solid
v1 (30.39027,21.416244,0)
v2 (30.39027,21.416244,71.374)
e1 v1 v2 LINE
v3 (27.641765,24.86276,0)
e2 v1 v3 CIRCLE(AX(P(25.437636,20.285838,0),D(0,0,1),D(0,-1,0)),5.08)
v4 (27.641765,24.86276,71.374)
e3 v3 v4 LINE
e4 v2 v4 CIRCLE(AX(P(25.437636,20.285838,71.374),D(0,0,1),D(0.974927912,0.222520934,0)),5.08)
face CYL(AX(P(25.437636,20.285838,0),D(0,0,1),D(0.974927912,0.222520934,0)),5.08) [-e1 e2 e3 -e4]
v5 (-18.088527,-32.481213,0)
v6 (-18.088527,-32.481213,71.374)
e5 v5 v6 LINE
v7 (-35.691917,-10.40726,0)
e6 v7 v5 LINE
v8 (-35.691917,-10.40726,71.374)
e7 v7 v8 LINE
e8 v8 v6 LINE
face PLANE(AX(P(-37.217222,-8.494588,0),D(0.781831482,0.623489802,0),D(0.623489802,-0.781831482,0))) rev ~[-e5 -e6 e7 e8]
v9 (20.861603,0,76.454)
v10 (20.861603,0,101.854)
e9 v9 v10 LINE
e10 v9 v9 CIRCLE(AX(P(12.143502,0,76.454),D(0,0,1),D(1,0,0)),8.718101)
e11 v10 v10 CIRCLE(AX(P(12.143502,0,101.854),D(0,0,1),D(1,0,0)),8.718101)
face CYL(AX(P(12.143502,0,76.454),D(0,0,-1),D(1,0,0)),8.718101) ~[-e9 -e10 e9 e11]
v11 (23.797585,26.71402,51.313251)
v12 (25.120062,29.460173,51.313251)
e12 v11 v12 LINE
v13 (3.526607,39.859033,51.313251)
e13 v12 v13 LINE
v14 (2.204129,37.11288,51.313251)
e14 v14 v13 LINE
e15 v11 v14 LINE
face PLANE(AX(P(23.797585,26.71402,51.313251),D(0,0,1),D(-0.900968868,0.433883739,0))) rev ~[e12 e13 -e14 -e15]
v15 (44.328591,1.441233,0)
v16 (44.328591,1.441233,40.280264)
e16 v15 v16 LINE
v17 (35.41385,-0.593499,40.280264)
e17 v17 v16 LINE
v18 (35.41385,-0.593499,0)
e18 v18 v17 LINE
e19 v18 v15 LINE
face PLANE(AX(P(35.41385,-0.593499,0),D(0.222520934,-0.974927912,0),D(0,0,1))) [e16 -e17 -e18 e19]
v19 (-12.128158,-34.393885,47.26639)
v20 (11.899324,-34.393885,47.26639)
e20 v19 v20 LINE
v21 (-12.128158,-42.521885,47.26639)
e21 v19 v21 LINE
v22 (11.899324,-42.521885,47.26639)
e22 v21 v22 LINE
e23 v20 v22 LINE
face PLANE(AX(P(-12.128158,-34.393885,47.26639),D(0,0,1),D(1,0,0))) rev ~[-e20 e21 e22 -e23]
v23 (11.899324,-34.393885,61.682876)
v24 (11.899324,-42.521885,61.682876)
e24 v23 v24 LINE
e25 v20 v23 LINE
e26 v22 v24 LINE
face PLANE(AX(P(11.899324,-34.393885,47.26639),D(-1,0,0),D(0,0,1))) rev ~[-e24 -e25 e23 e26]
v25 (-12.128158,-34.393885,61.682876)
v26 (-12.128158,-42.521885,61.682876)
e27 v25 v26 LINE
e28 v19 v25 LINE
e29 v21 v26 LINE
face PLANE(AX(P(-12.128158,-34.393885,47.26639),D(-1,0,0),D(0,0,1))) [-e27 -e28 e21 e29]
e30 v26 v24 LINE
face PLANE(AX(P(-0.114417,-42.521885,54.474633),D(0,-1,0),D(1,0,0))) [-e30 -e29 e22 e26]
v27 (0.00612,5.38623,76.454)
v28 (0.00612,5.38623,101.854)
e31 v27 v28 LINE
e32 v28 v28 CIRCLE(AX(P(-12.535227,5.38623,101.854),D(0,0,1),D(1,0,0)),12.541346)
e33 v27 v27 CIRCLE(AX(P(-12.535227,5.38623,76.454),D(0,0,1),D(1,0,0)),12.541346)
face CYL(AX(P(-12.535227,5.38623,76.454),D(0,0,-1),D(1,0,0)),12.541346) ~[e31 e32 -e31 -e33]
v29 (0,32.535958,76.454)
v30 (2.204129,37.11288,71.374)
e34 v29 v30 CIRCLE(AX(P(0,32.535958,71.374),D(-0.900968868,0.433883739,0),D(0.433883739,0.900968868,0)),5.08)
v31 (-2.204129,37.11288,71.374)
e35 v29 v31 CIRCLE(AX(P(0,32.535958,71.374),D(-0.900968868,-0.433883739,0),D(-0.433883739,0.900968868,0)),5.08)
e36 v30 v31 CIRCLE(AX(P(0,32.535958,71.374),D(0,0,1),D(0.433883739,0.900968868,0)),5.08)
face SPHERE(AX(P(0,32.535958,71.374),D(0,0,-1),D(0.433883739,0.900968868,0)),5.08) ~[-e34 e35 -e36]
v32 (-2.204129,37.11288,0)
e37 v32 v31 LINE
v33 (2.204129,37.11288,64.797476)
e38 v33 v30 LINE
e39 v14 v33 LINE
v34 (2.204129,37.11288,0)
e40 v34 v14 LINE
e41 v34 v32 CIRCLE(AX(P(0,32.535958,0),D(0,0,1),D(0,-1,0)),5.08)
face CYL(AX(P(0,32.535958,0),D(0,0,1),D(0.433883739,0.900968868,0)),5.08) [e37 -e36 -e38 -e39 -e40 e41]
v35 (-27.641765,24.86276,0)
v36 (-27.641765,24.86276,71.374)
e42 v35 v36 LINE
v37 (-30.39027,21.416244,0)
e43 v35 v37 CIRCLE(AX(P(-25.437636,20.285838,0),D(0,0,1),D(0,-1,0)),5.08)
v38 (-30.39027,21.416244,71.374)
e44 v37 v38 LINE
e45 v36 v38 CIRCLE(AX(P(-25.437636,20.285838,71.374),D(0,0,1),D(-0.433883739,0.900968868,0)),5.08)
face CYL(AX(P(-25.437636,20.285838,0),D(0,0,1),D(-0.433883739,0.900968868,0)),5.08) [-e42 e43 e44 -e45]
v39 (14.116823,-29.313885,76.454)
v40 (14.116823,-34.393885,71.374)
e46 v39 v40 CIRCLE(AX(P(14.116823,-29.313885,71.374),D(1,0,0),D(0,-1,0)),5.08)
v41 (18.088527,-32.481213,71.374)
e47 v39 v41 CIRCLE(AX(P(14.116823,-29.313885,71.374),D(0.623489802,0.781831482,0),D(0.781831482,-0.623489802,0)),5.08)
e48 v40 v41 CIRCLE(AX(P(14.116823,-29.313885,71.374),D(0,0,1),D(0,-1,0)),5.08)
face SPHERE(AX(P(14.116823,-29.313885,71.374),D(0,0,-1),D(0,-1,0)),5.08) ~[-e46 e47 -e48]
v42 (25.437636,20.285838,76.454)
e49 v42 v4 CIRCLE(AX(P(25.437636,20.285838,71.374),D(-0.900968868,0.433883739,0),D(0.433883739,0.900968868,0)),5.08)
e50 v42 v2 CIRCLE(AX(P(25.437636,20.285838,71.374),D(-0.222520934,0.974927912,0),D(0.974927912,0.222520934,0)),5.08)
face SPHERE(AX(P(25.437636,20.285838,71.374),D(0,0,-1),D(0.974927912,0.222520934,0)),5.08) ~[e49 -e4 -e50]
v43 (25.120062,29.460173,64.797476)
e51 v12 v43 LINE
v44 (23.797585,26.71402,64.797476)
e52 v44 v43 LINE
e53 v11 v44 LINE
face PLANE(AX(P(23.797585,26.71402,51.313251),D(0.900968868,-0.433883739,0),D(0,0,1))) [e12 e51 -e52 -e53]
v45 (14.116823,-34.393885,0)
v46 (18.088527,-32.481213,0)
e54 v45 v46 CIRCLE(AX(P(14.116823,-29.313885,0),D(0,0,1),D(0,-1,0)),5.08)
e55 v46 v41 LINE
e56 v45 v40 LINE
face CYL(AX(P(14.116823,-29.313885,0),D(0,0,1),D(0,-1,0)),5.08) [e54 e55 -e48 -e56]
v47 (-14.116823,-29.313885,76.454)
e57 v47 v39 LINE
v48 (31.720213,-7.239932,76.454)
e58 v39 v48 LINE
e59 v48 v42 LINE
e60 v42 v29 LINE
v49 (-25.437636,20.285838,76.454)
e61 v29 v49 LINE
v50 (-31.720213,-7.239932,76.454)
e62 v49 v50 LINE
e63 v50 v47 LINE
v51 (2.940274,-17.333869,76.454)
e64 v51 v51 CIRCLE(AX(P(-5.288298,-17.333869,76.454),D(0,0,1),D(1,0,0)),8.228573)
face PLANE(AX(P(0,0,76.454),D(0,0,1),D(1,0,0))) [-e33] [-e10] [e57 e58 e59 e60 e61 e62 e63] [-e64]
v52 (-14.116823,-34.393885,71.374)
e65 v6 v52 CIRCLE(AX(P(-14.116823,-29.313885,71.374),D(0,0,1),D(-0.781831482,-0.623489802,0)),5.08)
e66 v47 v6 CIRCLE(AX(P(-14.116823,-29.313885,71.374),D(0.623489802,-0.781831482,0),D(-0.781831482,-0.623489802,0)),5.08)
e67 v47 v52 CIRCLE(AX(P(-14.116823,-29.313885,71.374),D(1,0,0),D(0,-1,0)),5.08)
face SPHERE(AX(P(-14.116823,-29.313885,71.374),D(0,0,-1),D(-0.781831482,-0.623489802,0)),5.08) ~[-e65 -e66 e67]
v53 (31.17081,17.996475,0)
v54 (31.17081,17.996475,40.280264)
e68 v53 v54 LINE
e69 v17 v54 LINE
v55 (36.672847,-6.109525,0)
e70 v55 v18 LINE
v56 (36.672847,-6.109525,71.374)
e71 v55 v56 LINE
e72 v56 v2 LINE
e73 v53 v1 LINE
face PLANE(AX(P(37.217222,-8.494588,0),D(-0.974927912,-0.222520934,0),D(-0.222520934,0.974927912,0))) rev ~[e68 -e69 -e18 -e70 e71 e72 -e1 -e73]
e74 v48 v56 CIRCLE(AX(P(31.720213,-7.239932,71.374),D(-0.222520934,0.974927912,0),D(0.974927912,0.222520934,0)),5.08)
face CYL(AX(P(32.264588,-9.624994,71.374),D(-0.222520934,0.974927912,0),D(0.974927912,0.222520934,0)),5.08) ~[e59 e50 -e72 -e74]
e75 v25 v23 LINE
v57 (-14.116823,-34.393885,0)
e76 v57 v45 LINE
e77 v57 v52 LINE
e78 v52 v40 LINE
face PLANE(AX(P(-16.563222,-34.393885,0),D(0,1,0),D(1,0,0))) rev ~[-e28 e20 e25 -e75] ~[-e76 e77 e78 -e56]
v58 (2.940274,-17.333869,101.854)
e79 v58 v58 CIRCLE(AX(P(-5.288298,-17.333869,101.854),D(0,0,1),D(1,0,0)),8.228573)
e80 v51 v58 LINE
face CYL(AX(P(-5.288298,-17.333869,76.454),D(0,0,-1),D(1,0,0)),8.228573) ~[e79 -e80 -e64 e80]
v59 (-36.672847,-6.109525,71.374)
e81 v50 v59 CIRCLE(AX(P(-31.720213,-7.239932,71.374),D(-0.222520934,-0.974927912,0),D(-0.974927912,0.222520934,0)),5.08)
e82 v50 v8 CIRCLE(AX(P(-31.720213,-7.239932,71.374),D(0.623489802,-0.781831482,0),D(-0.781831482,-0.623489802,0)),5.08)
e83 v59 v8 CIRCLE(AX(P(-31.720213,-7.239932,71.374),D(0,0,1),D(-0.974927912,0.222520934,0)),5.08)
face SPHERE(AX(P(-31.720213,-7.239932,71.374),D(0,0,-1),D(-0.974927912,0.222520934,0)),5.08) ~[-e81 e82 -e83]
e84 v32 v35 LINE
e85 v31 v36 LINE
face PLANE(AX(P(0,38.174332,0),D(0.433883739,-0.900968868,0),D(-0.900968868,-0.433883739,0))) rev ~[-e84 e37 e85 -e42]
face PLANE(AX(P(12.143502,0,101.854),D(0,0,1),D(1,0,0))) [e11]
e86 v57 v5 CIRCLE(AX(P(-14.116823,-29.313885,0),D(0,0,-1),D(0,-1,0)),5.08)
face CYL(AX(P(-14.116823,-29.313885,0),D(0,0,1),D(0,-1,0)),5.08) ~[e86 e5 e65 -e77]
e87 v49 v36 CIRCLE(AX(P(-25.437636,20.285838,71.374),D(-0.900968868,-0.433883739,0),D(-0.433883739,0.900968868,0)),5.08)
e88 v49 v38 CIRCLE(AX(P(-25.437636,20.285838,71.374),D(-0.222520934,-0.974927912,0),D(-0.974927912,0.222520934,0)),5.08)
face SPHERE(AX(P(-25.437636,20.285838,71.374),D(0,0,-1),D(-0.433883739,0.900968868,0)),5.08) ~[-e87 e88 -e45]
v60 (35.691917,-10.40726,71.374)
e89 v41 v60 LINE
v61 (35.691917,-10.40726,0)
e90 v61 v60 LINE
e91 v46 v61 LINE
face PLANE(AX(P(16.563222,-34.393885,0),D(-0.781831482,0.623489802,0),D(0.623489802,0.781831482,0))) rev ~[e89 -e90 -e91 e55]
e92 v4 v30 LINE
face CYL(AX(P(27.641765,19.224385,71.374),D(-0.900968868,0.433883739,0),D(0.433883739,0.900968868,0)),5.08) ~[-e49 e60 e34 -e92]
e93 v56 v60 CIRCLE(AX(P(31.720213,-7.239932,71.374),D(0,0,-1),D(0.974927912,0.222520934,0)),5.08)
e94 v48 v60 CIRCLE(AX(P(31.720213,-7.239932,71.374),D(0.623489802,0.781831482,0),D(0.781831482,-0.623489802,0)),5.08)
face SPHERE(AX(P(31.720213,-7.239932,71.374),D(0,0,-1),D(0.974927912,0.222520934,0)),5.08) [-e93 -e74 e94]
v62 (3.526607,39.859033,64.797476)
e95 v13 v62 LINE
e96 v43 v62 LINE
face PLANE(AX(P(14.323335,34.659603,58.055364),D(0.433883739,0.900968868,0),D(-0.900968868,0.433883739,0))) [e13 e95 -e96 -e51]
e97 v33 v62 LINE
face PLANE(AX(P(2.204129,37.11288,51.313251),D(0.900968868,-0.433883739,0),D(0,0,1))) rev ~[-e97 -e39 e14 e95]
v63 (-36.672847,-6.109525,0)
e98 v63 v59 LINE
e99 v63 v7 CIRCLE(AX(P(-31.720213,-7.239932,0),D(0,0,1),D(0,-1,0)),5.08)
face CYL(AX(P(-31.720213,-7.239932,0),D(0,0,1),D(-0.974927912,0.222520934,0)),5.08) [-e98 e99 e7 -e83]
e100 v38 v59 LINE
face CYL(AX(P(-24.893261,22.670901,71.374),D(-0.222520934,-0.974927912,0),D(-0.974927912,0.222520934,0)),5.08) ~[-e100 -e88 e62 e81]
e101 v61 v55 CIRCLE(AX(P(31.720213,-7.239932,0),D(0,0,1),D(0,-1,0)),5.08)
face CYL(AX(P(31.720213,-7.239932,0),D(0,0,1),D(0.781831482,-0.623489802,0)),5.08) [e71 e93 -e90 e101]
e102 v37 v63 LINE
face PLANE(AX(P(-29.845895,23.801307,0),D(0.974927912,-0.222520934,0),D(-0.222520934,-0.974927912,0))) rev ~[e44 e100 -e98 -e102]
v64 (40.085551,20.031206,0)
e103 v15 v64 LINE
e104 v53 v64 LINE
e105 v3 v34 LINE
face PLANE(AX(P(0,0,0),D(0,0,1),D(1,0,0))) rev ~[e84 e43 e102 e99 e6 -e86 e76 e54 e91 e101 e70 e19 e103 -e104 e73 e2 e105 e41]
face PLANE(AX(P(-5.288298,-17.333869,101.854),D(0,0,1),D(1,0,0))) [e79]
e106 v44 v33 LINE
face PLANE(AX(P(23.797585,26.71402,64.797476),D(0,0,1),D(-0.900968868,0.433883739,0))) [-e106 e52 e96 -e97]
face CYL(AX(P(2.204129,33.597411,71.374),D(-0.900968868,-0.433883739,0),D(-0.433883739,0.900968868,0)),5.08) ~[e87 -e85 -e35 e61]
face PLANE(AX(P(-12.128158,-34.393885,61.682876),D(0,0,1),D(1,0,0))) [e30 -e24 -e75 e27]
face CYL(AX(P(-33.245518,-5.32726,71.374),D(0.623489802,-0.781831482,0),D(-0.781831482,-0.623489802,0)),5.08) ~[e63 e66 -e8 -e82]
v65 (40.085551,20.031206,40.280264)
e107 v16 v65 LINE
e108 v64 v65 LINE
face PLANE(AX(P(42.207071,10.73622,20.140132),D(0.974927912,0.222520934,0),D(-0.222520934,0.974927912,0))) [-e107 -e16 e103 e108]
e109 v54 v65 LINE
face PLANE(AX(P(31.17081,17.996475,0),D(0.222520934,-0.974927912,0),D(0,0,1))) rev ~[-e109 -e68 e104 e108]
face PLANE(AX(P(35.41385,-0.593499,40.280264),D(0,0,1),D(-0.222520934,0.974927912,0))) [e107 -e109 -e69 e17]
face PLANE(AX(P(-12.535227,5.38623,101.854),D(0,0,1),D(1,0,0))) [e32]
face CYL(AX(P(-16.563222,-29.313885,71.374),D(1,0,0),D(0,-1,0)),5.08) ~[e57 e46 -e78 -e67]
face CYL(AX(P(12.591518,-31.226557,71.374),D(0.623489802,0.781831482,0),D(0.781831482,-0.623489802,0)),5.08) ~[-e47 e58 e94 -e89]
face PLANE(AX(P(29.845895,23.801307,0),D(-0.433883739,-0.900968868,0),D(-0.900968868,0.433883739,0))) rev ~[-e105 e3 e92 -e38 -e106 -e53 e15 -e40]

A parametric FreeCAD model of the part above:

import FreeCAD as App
import Part
import Sketcher
from FreeCAD import Vector
Q = App.Units.Quantity


def edges_at(feature, points):
    """Names of the edges that pass closest to the given points."""
    edges = feature.Shape.Edges
    near = lambda p: min(range(len(edges)), key=lambda i: edges[i].distToShape(Part.Vertex(*p))[0])
    return sorted({f"Edge{near(p) + 1}" for p in points})

doc = App.newDocument("Part")
params = doc.addObject("Spreadsheet::Sheet", "Params")
for row, (alias, value) in enumerate([
    ("pad1_length", "3.01 in"),
    ("fillet_radius", "0.2 in"),
    ("pad2_length", "1 in"),
    ("pad3_length", "0.36 in"),
    ("pad4_length", "0.12 in"),
    ("pad5_length", "0.21 in"),
    ("pad6_length", "0.32 in"),
], start=1):
    params.set(f"A{row}", alias)
    params.set(f"B{row}", "=" + value)
    params.setAlias(f"B{row}", alias)

body = doc.addObject("PartDesign::Body", "Body")

sketch1 = doc.addObject("Sketcher::SketchObject", "Sketch")
body.addObject(sketch1)
sketch1.AttachmentSupport = (doc.XY_Plane, [""])
sketch1.MapMode = "FlatFace"
sketch1.addGeometry(Part.LineSegment(Vector(-17, -34, 0), Vector(17, -34, 0)), False)
sketch1.addGeometry(Part.LineSegment(Vector(17, -34, 0), Vector(37, -8, 0)), False)
sketch1.addGeometry(Part.LineSegment(Vector(37, -8, 0), Vector(30, 24, 0)), False)
sketch1.addGeometry(Part.LineSegment(Vector(30, 24, 0), Vector(0, 38, 0)), False)
sketch1.addGeometry(Part.LineSegment(Vector(0, 38, 0), Vector(-30, 24, 0)), False)
sketch1.addGeometry(Part.LineSegment(Vector(-30, 24, 0), Vector(-37, -8, 0)), False)
sketch1.addGeometry(Part.LineSegment(Vector(-37, -8, 0), Vector(-17, -34, 0)), False)
sketch1.addConstraint(Sketcher.Constraint("Coincident", 0, 2, 1, 1))
sketch1.addConstraint(Sketcher.Constraint("Coincident", 1, 2, 2, 1))
sketch1.addConstraint(Sketcher.Constraint("Coincident", 2, 2, 3, 1))
sketch1.addConstraint(Sketcher.Constraint("Coincident", 3, 2, 4, 1))
sketch1.addConstraint(Sketcher.Constraint("Coincident", 4, 2, 5, 1))
sketch1.addConstraint(Sketcher.Constraint("Coincident", 5, 2, 6, 1))
sketch1.addConstraint(Sketcher.Constraint("Coincident", 6, 2, 0, 1))
sketch1.addConstraint(Sketcher.Constraint("Horizontal", 0))
sketch1.addConstraint(Sketcher.Constraint("Symmetric", 2, 2, 4, 2, -2))
sketch1.addConstraint(Sketcher.Constraint("Symmetric", 1, 2, 5, 2, -2))
sketch1.addConstraint(Sketcher.Constraint("PointOnObject", 3, 2, -2))
sketch1.addConstraint(Sketcher.Constraint("Equal", 1, 2))
sketch1.addConstraint(Sketcher.Constraint("Equal", 2, 3))
sketch1.addConstraint(Sketcher.Constraint("Equal", 5, 6))
sketch1.addConstraint(Sketcher.Constraint("DistanceX", 0, 2, 1, 2, Q("20.654 mm")))
sketch1.addConstraint(Sketcher.Constraint("DistanceX", 0, 1, 0, 2, Q("33.126444 mm")))
sketch1.addConstraint(Sketcher.Constraint("DistanceY", 1, 2, -1, 1, Q("8.494588 mm")))
sketch1.addConstraint(Sketcher.Constraint("DistanceY", 0, 2, 2, 2, Q("58.195192 mm")))
sketch1.addConstraint(Sketcher.Constraint("DistanceY", 1, 2, 3, 2, Q("46.66892 mm")))
pad1 = doc.addObject("PartDesign::Pad", "Pad")
body.addObject(pad1)
pad1.Profile = sketch1
pad1.setExpression("Length", "Params.pad1_length")
doc.recompute()

fillet = doc.addObject("PartDesign::Fillet", "Fillet")
body.addObject(fillet)
fillet.Base = (pad1, edges_at(pad1, [
    (33.532, 7.653, 76.454),
    (14.923, 30.988, 76.454),
    (-14.923, 30.988, 76.454),
    (-33.532, 7.653, 76.454),
    (-26.89, -21.444, 76.454),
    (0, -34.394, 76.454),
    (26.89, -21.444, 76.454),
    (29.846, 23.801, 38.227),
    (0, 38.174, 38.227),
    (37.217, -8.495, 38.227),
    (16.563, -34.394, 38.227),
    (-29.846, 23.801, 38.227),
    (-37.217, -8.495, 38.227),
    (-16.563, -34.394, 38.227),
]))
fillet.setExpression("Radius", "Params.fillet_radius")

sketch2 = doc.addObject("Sketcher::SketchObject", "Sketch001")
body.addObject(sketch2)
sketch2.AttachmentSupport = (doc.XY_Plane, [""])
sketch2.MapMode = "FlatFace"
sketch2.AttachmentOffset = App.Placement(Vector(0, 0, 3.01 * 25.4), App.Rotation())
sketch2.addGeometry(Part.Circle(Vector(-13, 5, 0), Vector(0, 0, 1), 13), False)
sketch2.addGeometry(Part.Circle(Vector(12, 0, 0), Vector(0, 0, 1), 9), False)
sketch2.addGeometry(Part.Circle(Vector(-5, -17, 0), Vector(0, 0, 1), 8), False)
sketch2.addConstraint(Sketcher.Constraint("PointOnObject", 1, 3, -1))
sketch2.addConstraint(Sketcher.Constraint("Diameter", 1, Q("17.436201 mm")))
sketch2.addConstraint(Sketcher.Constraint("Diameter", 0, Q("25.082693 mm")))
sketch2.addConstraint(Sketcher.Constraint("Diameter", 2, Q("16.457145 mm")))
sketch2.addConstraint(Sketcher.Constraint("DistanceX", 2, 3, -1, 1, Q("5.288298 mm")))
sketch2.addConstraint(Sketcher.Constraint("DistanceY", 2, 3, 0, 3, Q("22.720099 mm")))
sketch2.addConstraint(Sketcher.Constraint("DistanceX", 2, 3, 1, 3, Q("17.4318 mm")))
sketch2.addConstraint(Sketcher.Constraint("DistanceY", -1, 1, 0, 3, Q("5.38623 mm")))
sketch2.addConstraint(Sketcher.Constraint("DistanceX", 0, 3, 1, 3, Q("24.678729 mm")))
pad2 = doc.addObject("PartDesign::Pad", "Pad001")
body.addObject(pad2)
pad2.Profile = sketch2
pad2.setExpression("Length", "Params.pad2_length")

sketch3 = doc.addObject("Sketcher::SketchObject", "Sketch002")
body.addObject(sketch3)
sketch3.Placement = App.Placement(Vector(33.531559, 7.653359, 0), App.Rotation(Vector(-0.222520934, 0.974927912, 0), Vector(0, 0, 1), Vector(0.974927912, 0.222520934, 0), "ZXY"))
sketch3.addGeometry(Part.LineSegment(Vector(-8, 40, 0), Vector(-8, 0, 0)), False)
sketch3.addGeometry(Part.LineSegment(Vector(-8, 0, 0), Vector(11, 0, 0)), False)
sketch3.addGeometry(Part.LineSegment(Vector(11, 0, 0), Vector(11, 40, 0)), False)
sketch3.addGeometry(Part.LineSegment(Vector(11, 40, 0), Vector(-8, 40, 0)), False)
sketch3.addConstraint(Sketcher.Constraint("Coincident", 0, 2, 1, 1))
sketch3.addConstraint(Sketcher.Constraint("Coincident", 1, 2, 2, 1))
sketch3.addConstraint(Sketcher.Constraint("Coincident", 2, 2, 3, 1))
sketch3.addConstraint(Sketcher.Constraint("Coincident", 3, 2, 0, 1))
sketch3.addConstraint(Sketcher.Constraint("Vertical", 0))
sketch3.addConstraint(Sketcher.Constraint("Horizontal", 1))
sketch3.addConstraint(Sketcher.Constraint("Vertical", 2))
sketch3.addConstraint(Sketcher.Constraint("Horizontal", 3))
sketch3.addConstraint(Sketcher.Constraint("PointOnObject", 0, 2, -1))
sketch3.addConstraint(Sketcher.Constraint("DistanceX", 1, 1, 1, 2, Q("19.068049 mm")))
sketch3.addConstraint(Sketcher.Constraint("DistanceY", 0, 2, 0, 1, Q("40.280264 mm")))
sketch3.addConstraint(Sketcher.Constraint("DistanceX", 0, 2, -1, 1, Q("8.458941 mm")))
pad3 = doc.addObject("PartDesign::Pad", "Pad002")
body.addObject(pad3)
pad3.Profile = sketch3
pad3.setExpression("Length", "Params.pad3_length")

sketch4 = doc.addObject("Sketcher::SketchObject", "Sketch003")
body.addObject(sketch4)
sketch4.Placement = App.Placement(Vector(14.922947, 30.98782, 0), App.Rotation(Vector(-0.900968868, 0.433883739, 0), Vector(0, 0, 1), Vector(0.433883739, 0.900968868, 0), "ZXY"))
sketch4.addGeometry(Part.LineSegment(Vector(-10, 65, 0), Vector(-10, 51, 0)), False)
sketch4.addGeometry(Part.LineSegment(Vector(-10, 51, 0), Vector(14, 51, 0)), False)
sketch4.addGeometry(Part.LineSegment(Vector(14, 51, 0), Vector(14, 65, 0)), False)
sketch4.addGeometry(Part.LineSegment(Vector(14, 65, 0), Vector(-10, 65, 0)), False)
sketch4.addConstraint(Sketcher.Constraint("Coincident", 0, 2, 1, 1))
sketch4.addConstraint(Sketcher.Constraint("Coincident", 1, 2, 2, 1))
sketch4.addConstraint(Sketcher.Constraint("Coincident", 2, 2, 3, 1))
sketch4.addConstraint(Sketcher.Constraint("Coincident", 3, 2, 0, 1))
sketch4.addConstraint(Sketcher.Constraint("Vertical", 0))
sketch4.addConstraint(Sketcher.Constraint("Horizontal", 1))
sketch4.addConstraint(Sketcher.Constraint("Vertical", 2))
sketch4.addConstraint(Sketcher.Constraint("Horizontal", 3))
sketch4.addConstraint(Sketcher.Constraint("DistanceX", 1, 1, 1, 2, Q("23.966927 mm")))
sketch4.addConstraint(Sketcher.Constraint("DistanceY", 0, 2, 0, 1, Q("13.484225 mm")))
sketch4.addConstraint(Sketcher.Constraint("DistanceY", -1, 1, 0, 2, Q("51.313251 mm")))
sketch4.addConstraint(Sketcher.Constraint("DistanceX", 0, 2, -1, 1, Q("9.850104 mm")))
pad4 = doc.addObject("PartDesign::Pad", "Pad003")
body.addObject(pad4)
pad4.Profile = sketch4
pad4.setExpression("Length", "Params.pad4_length")

sketch5 = doc.addObject("Sketcher::SketchObject", "Sketch004")
body.addObject(sketch5)
sketch5.Placement = App.Placement(Vector(42.446299, 9.688091, 0), App.Rotation(Vector(-0.222520934, 0.974927912, 0), Vector(0, 0, 1), Vector(0.974927912, 0.222520934, 0), "ZXY"))
sketch5.addGeometry(Part.Circle(Vector(3.9, 19.3, 0), Vector(0, 0, 1), 2.3), False)
sketch5.addConstraint(Sketcher.Constraint("Diameter", 0, Q("4.600673 mm")))
sketch5.addConstraint(Sketcher.Constraint("DistanceX", -1, 1, 0, 3, Q("3.911125 mm")))
sketch5.addConstraint(Sketcher.Constraint("DistanceY", -1, 1, 0, 3, Q("19.348742 mm")))
pad5 = doc.addObject("PartDesign::Pad", "Pad004")
body.addObject(pad5)
pad5.Profile = sketch5
pad5.setExpression("Length", "Params.pad5_length")
pad5.Reversed = True

sketch6 = doc.addObject("Sketcher::SketchObject", "Sketch005")
body.addObject(sketch6)
sketch6.AttachmentSupport = (doc.XZ_Plane, [""])
sketch6.MapMode = "FlatFace"
sketch6.AttachmentOffset = App.Placement(Vector(0, 0, 34.393885), App.Rotation())
sketch6.addGeometry(Part.LineSegment(Vector(-12, 62, 0), Vector(-12, 47, 0)), False)
sketch6.addGeometry(Part.LineSegment(Vector(-12, 47, 0), Vector(12, 47, 0)), False)
sketch6.addGeometry(Part.LineSegment(Vector(12, 47, 0), Vector(12, 62, 0)), False)
sketch6.addGeometry(Part.LineSegment(Vector(12, 62, 0), Vector(-12, 62, 0)), False)
sketch6.addConstraint(Sketcher.Constraint("Coincident", 0, 2, 1, 1))
sketch6.addConstraint(Sketcher.Constraint("Coincident", 1, 2, 2, 1))
sketch6.addConstraint(Sketcher.Constraint("Coincident", 2, 2, 3, 1))
sketch6.addConstraint(Sketcher.Constraint("Coincident", 3, 2, 0, 1))
sketch6.addConstraint(Sketcher.Constraint("Vertical", 0))
sketch6.addConstraint(Sketcher.Constraint("Horizontal", 1))
sketch6.addConstraint(Sketcher.Constraint("Vertical", 2))
sketch6.addConstraint(Sketcher.Constraint("Horizontal", 3))
sketch6.addConstraint(Sketcher.Constraint("DistanceX", 1, 1, 1, 2, Q("24.027483 mm")))
sketch6.addConstraint(Sketcher.Constraint("DistanceY", 0, 2, 0, 1, Q("14.416486 mm")))
sketch6.addConstraint(Sketcher.Constraint("DistanceX", 0, 2, -1, 1, Q("12.128158 mm")))
sketch6.addConstraint(Sketcher.Constraint("DistanceY", -1, 1, 0, 2, Q("47.26639 mm")))
pad6 = doc.addObject("PartDesign::Pad", "Pad005")
body.addObject(pad6)
pad6.Profile = sketch6
pad6.setExpression("Length", "Params.pad6_length")

doc.recompute()
